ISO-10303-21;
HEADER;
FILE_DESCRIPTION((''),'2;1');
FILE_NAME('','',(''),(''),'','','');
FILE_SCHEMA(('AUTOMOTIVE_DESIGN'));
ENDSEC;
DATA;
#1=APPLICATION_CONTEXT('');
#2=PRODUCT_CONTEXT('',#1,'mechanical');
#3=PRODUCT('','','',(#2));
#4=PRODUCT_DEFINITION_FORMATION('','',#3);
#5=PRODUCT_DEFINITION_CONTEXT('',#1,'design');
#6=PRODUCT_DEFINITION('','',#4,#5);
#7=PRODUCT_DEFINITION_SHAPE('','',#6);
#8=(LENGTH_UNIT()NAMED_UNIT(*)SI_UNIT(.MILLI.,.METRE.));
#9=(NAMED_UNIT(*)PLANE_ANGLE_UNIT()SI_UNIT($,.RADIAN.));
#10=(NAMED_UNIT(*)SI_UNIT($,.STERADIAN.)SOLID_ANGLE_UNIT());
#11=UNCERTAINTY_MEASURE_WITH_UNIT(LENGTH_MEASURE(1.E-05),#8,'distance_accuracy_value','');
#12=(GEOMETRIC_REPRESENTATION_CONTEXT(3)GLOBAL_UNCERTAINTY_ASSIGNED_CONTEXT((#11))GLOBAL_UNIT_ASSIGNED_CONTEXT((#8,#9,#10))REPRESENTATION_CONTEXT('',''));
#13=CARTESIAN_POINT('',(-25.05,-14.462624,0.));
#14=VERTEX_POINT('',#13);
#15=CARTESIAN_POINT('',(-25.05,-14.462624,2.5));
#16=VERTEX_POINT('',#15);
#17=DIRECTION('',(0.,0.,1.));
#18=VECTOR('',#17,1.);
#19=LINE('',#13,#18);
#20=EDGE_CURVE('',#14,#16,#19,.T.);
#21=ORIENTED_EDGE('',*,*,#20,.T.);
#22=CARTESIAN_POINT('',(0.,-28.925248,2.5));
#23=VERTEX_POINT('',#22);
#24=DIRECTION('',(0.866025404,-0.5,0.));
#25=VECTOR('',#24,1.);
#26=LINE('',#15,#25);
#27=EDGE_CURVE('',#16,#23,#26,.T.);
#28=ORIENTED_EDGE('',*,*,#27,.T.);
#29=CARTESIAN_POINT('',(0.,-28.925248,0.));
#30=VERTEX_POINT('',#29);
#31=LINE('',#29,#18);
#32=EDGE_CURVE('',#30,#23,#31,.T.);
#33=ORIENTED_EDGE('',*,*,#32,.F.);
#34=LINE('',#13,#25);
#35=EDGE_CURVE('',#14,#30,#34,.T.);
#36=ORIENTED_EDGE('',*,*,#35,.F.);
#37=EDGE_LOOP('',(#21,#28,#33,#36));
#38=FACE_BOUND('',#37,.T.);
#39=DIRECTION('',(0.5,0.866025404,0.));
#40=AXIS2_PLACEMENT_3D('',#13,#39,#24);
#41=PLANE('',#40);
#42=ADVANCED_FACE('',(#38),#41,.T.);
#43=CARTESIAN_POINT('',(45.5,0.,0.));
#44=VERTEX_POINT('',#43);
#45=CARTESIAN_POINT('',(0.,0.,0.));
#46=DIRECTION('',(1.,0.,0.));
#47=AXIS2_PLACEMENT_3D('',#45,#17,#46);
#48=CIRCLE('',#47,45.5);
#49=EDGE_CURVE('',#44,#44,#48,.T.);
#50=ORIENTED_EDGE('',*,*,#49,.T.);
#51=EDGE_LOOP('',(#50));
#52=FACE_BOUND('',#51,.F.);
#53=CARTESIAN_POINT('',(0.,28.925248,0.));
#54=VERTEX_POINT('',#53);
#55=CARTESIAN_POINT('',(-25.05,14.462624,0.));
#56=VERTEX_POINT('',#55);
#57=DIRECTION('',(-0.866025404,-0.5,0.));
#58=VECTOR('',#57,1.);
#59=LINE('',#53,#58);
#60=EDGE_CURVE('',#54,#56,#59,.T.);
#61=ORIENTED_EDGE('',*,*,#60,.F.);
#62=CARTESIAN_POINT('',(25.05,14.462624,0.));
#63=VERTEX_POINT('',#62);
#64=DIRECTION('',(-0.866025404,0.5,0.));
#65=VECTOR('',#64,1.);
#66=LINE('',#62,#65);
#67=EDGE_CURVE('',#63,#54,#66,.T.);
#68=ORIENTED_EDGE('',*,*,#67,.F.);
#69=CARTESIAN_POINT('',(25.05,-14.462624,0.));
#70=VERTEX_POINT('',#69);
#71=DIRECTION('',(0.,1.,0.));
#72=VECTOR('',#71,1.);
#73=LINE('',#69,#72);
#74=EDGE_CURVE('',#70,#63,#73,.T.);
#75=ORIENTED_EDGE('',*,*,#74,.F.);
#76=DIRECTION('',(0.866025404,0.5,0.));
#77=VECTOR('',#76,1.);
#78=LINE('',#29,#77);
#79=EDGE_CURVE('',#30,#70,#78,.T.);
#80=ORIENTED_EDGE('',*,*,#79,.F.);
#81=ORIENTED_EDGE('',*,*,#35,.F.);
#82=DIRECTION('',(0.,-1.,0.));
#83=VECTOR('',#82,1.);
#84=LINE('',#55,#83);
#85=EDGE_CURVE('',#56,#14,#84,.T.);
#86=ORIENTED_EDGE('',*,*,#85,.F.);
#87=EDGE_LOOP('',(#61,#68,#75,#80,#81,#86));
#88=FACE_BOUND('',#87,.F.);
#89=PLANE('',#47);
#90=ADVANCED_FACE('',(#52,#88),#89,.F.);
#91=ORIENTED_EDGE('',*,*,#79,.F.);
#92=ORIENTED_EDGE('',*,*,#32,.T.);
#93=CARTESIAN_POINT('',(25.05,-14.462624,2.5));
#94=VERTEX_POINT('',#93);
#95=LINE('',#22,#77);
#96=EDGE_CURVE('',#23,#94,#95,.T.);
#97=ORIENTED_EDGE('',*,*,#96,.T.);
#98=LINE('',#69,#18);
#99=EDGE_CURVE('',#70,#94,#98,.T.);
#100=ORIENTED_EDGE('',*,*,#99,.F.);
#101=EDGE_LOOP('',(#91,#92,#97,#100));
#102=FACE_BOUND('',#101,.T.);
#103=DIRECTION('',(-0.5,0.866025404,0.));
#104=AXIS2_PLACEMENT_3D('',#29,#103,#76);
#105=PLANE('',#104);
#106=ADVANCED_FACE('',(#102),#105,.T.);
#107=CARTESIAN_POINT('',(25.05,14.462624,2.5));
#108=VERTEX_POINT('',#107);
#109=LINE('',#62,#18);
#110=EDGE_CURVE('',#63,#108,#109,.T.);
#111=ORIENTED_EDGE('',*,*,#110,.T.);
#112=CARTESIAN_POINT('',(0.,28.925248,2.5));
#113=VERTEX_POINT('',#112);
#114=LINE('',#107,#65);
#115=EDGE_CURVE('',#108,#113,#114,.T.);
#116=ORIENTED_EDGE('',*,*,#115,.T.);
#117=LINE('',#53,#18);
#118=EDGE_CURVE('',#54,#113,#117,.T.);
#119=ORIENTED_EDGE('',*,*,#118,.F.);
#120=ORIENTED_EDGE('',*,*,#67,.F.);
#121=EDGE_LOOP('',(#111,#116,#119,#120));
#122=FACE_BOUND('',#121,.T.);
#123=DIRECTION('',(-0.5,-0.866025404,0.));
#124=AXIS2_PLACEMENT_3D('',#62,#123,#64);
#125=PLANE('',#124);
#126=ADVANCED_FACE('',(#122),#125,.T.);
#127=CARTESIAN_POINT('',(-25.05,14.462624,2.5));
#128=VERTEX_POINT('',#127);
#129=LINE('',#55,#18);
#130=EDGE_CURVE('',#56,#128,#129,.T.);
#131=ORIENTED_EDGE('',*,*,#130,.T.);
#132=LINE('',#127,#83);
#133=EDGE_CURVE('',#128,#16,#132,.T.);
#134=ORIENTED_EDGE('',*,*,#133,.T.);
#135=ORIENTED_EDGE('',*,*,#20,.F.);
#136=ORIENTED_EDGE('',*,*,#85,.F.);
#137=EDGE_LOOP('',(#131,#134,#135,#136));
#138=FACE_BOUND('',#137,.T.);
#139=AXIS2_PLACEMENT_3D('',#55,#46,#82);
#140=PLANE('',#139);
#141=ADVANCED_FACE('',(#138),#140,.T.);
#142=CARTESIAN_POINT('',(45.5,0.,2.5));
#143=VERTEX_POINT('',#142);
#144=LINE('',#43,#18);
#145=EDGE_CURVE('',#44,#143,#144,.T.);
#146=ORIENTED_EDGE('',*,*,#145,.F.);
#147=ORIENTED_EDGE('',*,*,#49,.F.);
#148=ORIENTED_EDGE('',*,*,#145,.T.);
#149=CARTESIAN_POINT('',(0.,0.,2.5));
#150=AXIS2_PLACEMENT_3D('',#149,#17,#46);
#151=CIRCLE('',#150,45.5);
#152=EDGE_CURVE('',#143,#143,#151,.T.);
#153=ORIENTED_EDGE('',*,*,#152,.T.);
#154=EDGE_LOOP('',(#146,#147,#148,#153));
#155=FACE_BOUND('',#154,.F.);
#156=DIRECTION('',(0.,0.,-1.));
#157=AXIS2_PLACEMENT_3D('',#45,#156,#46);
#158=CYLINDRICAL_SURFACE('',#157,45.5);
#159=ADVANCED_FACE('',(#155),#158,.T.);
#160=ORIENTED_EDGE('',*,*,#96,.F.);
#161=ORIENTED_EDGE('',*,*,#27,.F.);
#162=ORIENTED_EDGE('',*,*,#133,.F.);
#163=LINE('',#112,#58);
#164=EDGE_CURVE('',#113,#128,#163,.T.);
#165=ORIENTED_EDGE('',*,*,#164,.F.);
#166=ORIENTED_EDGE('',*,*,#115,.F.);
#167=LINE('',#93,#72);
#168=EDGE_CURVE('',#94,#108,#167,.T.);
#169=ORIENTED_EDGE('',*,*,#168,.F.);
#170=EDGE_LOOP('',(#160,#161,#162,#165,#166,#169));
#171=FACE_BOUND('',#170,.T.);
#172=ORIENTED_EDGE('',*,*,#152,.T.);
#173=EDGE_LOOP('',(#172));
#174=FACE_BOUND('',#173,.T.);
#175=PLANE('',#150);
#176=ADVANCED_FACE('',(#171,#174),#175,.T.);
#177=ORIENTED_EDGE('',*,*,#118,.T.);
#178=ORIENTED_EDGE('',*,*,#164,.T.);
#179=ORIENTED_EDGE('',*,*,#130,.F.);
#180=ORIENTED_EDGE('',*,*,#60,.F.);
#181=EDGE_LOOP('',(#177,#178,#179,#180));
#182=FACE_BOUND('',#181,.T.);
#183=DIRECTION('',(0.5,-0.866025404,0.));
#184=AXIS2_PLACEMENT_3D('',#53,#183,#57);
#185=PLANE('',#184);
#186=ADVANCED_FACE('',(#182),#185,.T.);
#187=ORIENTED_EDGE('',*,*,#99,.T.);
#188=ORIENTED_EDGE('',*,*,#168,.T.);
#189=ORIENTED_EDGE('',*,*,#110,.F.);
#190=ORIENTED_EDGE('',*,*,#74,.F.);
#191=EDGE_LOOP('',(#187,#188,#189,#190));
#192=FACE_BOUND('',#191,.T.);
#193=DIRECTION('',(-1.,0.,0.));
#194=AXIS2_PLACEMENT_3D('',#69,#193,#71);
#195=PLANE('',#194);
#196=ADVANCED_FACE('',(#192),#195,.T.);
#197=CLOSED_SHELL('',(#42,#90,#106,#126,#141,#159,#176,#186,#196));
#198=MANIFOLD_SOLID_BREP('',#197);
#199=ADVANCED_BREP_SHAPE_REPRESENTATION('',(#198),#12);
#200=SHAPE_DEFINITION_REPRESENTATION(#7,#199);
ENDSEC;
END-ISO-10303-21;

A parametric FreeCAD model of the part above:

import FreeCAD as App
import Part
import Sketcher

V = App.Vector
Q = App.Units.Quantity

doc = App.newDocument("Part")
body = doc.addObject("PartDesign::Body", "Body")

sketch1 = body.newObject("Sketcher::SketchObject", "Sketch")
sketch1.AttachmentSupport = (doc.getObject("XY_Plane"), [""])
sketch1.MapMode = "FlatFace"
sketch1.addGeometry([
    Part.Circle(V(0, 0, 0), V(0, 0, 1), 46),
    Part.LineSegment(V(-25, 14, 0), V(0, 29, 0)),
    Part.LineSegment(V(0, 29, 0), V(25, 14, 0)),
    Part.LineSegment(V(25, 14, 0), V(25, -14, 0)),
    Part.LineSegment(V(25, -14, 0), V(0, -29, 0)),
    Part.LineSegment(V(0, -29, 0), V(-25, -14, 0)),
    Part.LineSegment(V(-25, -14, 0), V(-25, 14, 0)),
], False)
sketch1.addConstraint([
    Sketcher.Constraint("Coincident", 1, 2, 2, 1),
    Sketcher.Constraint("Coincident", 2, 2, 3, 1),
    Sketcher.Constraint("Coincident", 3, 2, 4, 1),
    Sketcher.Constraint("Coincident", 4, 2, 5, 1),
    Sketcher.Constraint("Coincident", 5, 2, 6, 1),
    Sketcher.Constraint("Coincident", 6, 2, 1, 1),
    Sketcher.Constraint("Vertical", 3),
    Sketcher.Constraint("Vertical", 6),
    Sketcher.Constraint("Coincident", 0, 3, -1, 1),
    Sketcher.Constraint("Symmetric", 1, 2, 4, 2, -1, 1),
    Sketcher.Constraint("Symmetric", 2, 2, 5, 2, -1, 1),
    Sketcher.Constraint("PointOnObject", 1, 2, -2),
    Sketcher.Constraint("Parallel", 1, 4),
    Sketcher.Constraint("Horizontal", 3, 2, 5, 2),
    Sketcher.Constraint("Diameter", 0, 91.0),
    Sketcher.Constraint("Angle", 1, Q("30 deg")),
    Sketcher.Constraint("DistanceX", 5, 2, 3, 2, 50.1),
    Sketcher.Constraint("DistanceY", 3, 2, 3, 1, 28.925248),
])
pad1 = body.newObject("PartDesign::Pad", "Pad")
pad1.Profile = sketch1
pad1.Length = 2.5

doc.recompute()
